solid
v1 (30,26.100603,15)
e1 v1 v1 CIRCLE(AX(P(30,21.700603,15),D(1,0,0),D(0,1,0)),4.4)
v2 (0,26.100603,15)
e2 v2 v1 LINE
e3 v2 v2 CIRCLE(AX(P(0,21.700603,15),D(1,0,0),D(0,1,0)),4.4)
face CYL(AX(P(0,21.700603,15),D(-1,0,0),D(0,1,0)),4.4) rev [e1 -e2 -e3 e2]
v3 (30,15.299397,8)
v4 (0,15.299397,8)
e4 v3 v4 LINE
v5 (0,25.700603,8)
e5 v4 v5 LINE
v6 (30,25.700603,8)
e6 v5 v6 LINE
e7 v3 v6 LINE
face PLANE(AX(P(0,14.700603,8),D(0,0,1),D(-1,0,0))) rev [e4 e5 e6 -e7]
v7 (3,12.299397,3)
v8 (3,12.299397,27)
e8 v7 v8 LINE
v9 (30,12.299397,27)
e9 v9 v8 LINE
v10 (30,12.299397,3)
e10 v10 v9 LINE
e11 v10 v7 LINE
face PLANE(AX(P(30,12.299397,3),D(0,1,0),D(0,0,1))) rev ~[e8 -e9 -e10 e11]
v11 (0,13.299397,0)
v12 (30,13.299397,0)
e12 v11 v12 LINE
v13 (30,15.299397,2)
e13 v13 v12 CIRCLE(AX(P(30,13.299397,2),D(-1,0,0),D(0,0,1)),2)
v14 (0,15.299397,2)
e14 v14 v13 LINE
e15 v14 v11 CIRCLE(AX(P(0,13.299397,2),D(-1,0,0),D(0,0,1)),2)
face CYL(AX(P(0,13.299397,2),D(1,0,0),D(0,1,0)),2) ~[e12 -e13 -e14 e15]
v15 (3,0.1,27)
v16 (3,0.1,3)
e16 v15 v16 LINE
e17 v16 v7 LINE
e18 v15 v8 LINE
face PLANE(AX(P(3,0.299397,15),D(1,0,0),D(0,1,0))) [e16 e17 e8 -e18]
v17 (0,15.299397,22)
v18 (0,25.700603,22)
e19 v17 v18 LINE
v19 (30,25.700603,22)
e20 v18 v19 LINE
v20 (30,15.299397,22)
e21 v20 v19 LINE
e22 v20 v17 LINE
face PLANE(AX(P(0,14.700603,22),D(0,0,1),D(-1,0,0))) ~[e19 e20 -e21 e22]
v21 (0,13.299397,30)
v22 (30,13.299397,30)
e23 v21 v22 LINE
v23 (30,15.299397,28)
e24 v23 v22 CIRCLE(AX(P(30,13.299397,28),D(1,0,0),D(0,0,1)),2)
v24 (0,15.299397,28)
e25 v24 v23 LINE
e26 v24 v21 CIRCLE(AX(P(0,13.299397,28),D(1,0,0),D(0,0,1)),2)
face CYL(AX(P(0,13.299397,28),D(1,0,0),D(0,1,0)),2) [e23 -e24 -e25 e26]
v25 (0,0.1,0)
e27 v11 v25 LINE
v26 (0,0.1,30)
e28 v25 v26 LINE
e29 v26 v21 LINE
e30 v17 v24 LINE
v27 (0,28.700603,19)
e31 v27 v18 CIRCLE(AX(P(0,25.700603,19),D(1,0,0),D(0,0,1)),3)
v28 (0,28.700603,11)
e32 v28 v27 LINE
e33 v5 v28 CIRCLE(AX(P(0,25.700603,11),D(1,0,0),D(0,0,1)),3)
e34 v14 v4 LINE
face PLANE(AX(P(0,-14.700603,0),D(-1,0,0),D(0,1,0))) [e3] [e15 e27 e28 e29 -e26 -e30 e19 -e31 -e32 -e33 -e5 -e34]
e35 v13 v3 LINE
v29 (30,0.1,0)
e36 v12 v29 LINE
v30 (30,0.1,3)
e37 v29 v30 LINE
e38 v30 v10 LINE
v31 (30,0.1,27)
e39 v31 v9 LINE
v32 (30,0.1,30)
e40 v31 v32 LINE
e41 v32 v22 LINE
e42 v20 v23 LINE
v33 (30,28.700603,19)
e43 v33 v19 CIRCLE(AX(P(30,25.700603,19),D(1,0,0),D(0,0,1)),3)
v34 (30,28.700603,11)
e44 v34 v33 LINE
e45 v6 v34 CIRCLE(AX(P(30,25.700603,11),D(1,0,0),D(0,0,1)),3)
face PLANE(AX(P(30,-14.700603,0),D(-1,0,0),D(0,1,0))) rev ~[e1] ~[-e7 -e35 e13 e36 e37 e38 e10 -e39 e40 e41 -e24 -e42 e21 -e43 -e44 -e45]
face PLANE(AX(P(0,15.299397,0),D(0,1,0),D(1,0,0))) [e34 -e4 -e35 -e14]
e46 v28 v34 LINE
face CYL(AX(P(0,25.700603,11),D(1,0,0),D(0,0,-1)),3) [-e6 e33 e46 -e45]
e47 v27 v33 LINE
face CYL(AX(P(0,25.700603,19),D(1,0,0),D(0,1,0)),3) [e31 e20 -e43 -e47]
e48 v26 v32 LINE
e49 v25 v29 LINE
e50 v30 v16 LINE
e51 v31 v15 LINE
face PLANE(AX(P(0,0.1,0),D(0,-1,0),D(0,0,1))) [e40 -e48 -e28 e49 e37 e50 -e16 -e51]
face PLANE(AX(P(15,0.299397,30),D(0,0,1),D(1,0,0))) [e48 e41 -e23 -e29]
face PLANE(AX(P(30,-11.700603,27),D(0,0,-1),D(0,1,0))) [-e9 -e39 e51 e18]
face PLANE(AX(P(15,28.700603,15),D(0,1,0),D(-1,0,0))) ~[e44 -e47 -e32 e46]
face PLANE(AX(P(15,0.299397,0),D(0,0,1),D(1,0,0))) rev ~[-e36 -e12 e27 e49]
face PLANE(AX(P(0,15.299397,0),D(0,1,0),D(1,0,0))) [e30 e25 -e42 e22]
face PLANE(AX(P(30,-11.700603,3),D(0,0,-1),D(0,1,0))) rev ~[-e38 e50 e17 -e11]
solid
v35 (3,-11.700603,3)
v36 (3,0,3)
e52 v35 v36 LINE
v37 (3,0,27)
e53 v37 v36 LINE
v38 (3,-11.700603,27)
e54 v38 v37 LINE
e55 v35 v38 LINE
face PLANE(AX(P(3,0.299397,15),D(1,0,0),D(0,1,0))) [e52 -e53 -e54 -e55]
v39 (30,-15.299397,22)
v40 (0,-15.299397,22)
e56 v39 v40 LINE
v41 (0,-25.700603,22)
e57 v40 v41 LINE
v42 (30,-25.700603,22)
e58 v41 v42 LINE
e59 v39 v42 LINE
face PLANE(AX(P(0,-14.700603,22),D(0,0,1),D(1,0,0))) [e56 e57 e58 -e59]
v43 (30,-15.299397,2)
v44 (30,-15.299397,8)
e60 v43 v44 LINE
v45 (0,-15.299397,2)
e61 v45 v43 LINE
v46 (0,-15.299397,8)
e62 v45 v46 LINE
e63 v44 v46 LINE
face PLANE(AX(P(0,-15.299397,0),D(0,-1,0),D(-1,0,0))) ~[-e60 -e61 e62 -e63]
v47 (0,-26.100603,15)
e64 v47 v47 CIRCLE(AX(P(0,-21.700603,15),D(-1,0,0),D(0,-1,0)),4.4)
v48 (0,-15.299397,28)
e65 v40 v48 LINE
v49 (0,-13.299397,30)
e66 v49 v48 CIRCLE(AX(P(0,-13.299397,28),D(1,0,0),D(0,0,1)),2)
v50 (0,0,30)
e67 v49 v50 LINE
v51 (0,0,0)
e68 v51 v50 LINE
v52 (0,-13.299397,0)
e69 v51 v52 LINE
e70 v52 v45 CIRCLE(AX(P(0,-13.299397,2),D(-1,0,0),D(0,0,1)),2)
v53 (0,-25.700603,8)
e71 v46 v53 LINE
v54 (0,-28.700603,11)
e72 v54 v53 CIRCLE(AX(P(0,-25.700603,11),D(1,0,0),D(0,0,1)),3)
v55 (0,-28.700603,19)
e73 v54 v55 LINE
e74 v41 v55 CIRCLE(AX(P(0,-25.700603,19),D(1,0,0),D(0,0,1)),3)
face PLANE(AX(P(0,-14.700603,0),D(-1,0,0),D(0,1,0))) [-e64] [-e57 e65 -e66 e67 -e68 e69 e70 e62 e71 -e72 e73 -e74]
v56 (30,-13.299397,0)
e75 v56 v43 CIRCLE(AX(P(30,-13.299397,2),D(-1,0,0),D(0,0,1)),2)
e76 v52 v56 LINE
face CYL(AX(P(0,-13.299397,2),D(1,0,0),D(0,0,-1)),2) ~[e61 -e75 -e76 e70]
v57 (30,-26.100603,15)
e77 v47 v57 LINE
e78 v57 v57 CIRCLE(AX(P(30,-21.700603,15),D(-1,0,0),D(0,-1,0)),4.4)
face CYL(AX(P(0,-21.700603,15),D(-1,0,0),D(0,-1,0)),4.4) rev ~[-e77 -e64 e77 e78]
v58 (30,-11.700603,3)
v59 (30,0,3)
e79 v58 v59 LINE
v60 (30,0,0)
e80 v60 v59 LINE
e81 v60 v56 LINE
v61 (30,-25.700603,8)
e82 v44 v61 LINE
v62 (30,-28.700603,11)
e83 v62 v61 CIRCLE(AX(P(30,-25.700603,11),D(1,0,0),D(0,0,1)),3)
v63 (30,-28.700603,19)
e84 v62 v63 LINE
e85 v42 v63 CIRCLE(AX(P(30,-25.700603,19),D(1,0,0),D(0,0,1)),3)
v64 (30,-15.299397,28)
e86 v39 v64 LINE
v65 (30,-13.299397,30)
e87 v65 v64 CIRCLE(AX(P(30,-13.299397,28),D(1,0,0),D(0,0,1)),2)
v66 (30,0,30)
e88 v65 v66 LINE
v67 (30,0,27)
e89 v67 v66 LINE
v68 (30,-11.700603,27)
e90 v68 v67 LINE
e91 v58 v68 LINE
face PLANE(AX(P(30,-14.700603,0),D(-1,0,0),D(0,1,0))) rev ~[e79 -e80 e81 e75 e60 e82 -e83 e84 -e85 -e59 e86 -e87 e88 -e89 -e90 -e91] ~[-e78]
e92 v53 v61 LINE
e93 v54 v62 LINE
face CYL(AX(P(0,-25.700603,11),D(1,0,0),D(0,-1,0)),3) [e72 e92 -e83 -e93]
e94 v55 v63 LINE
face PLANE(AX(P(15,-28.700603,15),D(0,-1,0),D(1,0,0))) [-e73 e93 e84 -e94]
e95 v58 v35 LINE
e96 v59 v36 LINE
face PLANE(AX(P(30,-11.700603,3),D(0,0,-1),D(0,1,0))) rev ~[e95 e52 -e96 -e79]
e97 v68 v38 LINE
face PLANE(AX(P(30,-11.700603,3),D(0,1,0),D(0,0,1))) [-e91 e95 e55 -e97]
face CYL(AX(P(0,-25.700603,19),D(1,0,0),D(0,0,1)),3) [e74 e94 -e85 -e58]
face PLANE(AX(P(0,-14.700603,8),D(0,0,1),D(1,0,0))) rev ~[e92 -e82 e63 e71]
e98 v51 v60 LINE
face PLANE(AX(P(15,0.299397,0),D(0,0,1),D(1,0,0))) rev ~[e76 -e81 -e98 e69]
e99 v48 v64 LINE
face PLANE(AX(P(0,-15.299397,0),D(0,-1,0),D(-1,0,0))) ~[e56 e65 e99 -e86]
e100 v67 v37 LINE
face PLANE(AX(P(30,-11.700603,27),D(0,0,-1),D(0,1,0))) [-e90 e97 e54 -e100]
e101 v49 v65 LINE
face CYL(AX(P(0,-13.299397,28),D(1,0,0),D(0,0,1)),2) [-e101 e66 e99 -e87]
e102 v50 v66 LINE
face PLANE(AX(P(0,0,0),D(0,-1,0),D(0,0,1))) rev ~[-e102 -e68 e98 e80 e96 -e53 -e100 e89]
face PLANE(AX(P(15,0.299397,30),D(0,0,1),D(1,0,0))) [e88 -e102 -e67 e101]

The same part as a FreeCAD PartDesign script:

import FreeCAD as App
import Part
import Sketcher

V = App.Vector
Q = App.Units.Quantity


def edges_at(feature, points):
    """Names of the edges that pass closest to the given points."""
    edges = feature.Shape.Edges
    near = lambda p: min(range(len(edges)), key=lambda i: edges[i].distToShape(Part.Vertex(*p))[0])
    return sorted({f"Edge{near(p) + 1}" for p in points})


def add_polygon(sketch, points):
    """Adds a closed chain of lines whose ends are joined by coincident constraints."""
    first, n = sketch.GeometryCount, len(points)
    for a, b in zip(points, points[1:] + points[:1]):
        sketch.addGeometry(Part.LineSegment(App.Vector(*a, 0), App.Vector(*b, 0)), False)
    for i in range(n):
        sketch.addConstraint(Sketcher.Constraint("Coincident", first + i, 2, first + (i + 1) % n, 1))

doc = App.newDocument("Part")
body = doc.addObject("PartDesign::Body", "Body")

# Sketch on XY plane
sketch1 = body.newObject("Sketcher::SketchObject", "Sketch")
sketch1.AttachmentSupport = (doc.getObject("XY_Plane"), [""])
sketch1.MapMode = "FlatFace"
add_polygon(sketch1, [(0, 15), (0, -15), (30, -15), (30, 15)])  # lines 0-3
sketch1.addConstraint([
    Sketcher.Constraint("Vertical", 0),
    Sketcher.Constraint("Horizontal", 1),
    Sketcher.Constraint("Vertical", 2),
    Sketcher.Constraint("Horizontal", 3),
    Sketcher.Constraint("PointOnObject", 0, 2, -2),
    Sketcher.Constraint("Equal", 3, 0),
    Sketcher.Constraint("DistanceX", 1, 1, 1, 2, Q("30 mm")),
    Sketcher.Constraint("DistanceY", 0, 2, -1, 1, Q("14.700603 mm")),
])
pad1 = body.newObject("PartDesign::Pad", "Pad")
pad1.Profile = sketch1
pad1.Length = 30

# Sketch on XZ plane
sketch2 = body.newObject("Sketcher::SketchObject", "Sketch001")
sketch2.AttachmentSupport = (doc.getObject("XZ_Plane"), [""])
sketch2.MapMode = "FlatFace"
sketch2.AttachmentOffset = App.Placement(V(0, 0, 14.700603), App.Rotation())
add_polygon(sketch2, [(0, 22), (0, 8), (30, 8), (30, 22)])  # lines 0-3
sketch2.addConstraint([
    Sketcher.Constraint("Vertical", 0),
    Sketcher.Constraint("Horizontal", 1),
    Sketcher.Constraint("Vertical", 2),
    Sketcher.Constraint("Horizontal", 3),
    Sketcher.Constraint("PointOnObject", 0, 2, -2),
    Sketcher.Constraint("DistanceX", 1, 1, 1, 2, Q("30 mm")),
    Sketcher.Constraint("DistanceY", 0, 2, 0, 1, Q("14 mm")),
    Sketcher.Constraint("DistanceY", -1, 1, 0, 2, Q("8 mm")),
])
pad2 = body.newObject("PartDesign::Pad", "Pad001")
pad2.Profile = sketch2
pad2.Length = 14

# Sketch on YZ plane
sketch3 = body.newObject("Sketcher::SketchObject", "Sketch002")
sketch3.AttachmentSupport = (doc.getObject("YZ_Plane"), [""])
sketch3.MapMode = "FlatFace"
sketch3.addGeometry(Part.Circle(V(-21.7, 15, 0), V(0, 0, 1), 4.4), False)
sketch3.addConstraint([
    Sketcher.Constraint("Diameter", 0, Q("8.8 mm")),
    Sketcher.Constraint("DistanceY", -1, 1, 0, 3, Q("15 mm")),
    Sketcher.Constraint("DistanceX", 0, 3, -1, 1, Q("21.700603 mm")),
])
pocket1 = body.newObject("PartDesign::Pocket", "Pocket")
pocket1.Profile = sketch3
pocket1.Length = 30
pocket1.Reversed = True
body2 = doc.addObject("PartDesign::Body", "Body001")
body2.AllowCompound = True
doc.recompute()

body2.BaseFeature = body
doc.recompute()

mirroring = doc.addObject("Part::Mirroring", "Mirroring")
mirroring.Source = body
mirroring.Base = V(0, 0, 0)
mirroring.Normal = V(0, -1, 0)
body3 = doc.addObject("PartDesign::Body", "Body002")
body3.BaseFeature = mirroring
boolean = body2.newObject("PartDesign::Boolean", "Boolean")
boolean.Type = "Fuse"
boolean.addObjects([body3])
doc.recompute()

fillet = body2.newObject("PartDesign::Fillet", "Fillet")
fillet.Base = (boolean, edges_at(boolean, [(15, -28.701, 8), (15, -28.701, 22)]))
fillet.Radius = 3
doc.recompute()

fillet2 = body2.newObject("PartDesign::Fillet", "Fillet001")
fillet2.Base = (fillet, edges_at(fillet, [(15, 28.701, 8), (15, 28.701, 22)]))
fillet2.Radius = 3

# Sketch on YZ plane
sketch4 = body2.newObject("Sketcher::SketchObject", "Sketch003")
sketch4.AttachmentSupport = (doc.getObject("YZ_Plane001"), [""])
sketch4.MapMode = "FlatFace"
sketch4.AttachmentOffset = App.Placement(V(0, 0, 30), App.Rotation())
add_polygon(sketch4, [(-12, 27), (-12, 3), (12, 3), (12, 27)])  # lines 0-3
sketch4.addConstraint([
    Sketcher.Constraint("Vertical", 0),
    Sketcher.Constraint("Horizontal", 1),
    Sketcher.Constraint("Vertical", 2),
    Sketcher.Constraint("Horizontal", 3),
    Sketcher.Constraint("Equal", 3, 0),
    Sketcher.Constraint("DistanceX", 1, 1, 1, 2, Q("24 mm")),
    Sketcher.Constraint("DistanceY", -1, 1, 0, 2, Q("3 mm")),
    Sketcher.Constraint("DistanceX", 0, 2, -1, 1, Q("11.700603 mm")),
])
pocket2 = body2.newObject("PartDesign::Pocket", "Pocket001")
pocket2.Profile = sketch4
pocket2.Length = 27
doc.recompute()

fillet3 = body2.newObject("PartDesign::Fillet", "Fillet002")
fillet3.Base = (pocket2, edges_at(pocket2, [
    (15, -15.299, 0),
    (15, -15.299, 30),
    (15, 15.299, 30),
    (15, 15.299, 0),
]))
fillet3.Radius = 2

# Sketch on YZ plane
sketch5 = body2.newObject("Sketcher::SketchObject", "Sketch004")
sketch5.AttachmentSupport = (doc.getObject("YZ_Plane001"), [""])
sketch5.MapMode = "FlatFace"
add_polygon(sketch5, [(0.1, 30), (0.1, 0), (0, 0), (0, 30)])  # lines 0-3
sketch5.addConstraint([
    Sketcher.Constraint("Vertical", 0),
    Sketcher.Constraint("Horizontal", 1),
    Sketcher.Constraint("Vertical", 2),
    Sketcher.Constraint("Horizontal", 3),
    Sketcher.Constraint("Coincident", 1, 2, -1, 1),
    Sketcher.Constraint("DistanceY", 0, 2, 0, 1, Q("30 mm")),
    Sketcher.Constraint("DistanceX", 1, 2, 1, 1, Q("0.1 mm")),
])
pocket3 = body2.newObject("PartDesign::Pocket", "Pocket002")
pocket3.Profile = sketch5
pocket3.Length = 30
pocket3.Reversed = True
mirroring.Visibility = False

doc.recompute()
